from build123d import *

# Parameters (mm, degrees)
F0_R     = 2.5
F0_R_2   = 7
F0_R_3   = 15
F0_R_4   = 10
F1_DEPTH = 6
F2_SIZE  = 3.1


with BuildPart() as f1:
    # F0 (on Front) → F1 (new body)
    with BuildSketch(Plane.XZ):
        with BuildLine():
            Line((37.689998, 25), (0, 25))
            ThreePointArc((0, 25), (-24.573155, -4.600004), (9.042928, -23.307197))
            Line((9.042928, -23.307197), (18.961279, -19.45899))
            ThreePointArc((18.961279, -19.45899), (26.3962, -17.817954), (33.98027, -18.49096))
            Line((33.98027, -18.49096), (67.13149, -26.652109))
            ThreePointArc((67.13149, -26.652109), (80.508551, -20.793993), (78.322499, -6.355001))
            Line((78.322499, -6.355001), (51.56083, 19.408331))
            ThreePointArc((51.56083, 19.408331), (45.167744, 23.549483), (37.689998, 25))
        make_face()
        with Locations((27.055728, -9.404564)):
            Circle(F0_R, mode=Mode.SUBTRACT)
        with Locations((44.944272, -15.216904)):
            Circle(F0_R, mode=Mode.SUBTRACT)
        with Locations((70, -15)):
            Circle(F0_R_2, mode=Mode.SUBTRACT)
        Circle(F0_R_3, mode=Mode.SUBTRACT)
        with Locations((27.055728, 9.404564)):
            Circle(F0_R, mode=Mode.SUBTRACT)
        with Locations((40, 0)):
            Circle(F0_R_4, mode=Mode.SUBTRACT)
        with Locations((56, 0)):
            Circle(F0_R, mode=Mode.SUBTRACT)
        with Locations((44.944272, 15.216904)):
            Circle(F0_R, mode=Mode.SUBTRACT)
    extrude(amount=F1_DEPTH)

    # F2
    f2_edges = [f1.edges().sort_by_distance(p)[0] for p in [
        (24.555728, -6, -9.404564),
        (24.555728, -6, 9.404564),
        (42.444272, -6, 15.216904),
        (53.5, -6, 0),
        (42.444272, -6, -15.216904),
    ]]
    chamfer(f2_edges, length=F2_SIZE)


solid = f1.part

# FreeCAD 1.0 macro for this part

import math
import FreeCAD as App
import Part
import Sketcher

V = App.Vector


def edges_at(feature, points):
    """Names of the edges that pass closest to the given points."""
    edges = feature.Shape.Edges
    near = lambda p: min(range(len(edges)), key=lambda i: edges[i].distToShape(Part.Vertex(*p))[0])
    return sorted({f"Edge{near(p) + 1}" for p in points})

doc = App.newDocument("Part")
body = doc.addObject("PartDesign::Body", "Body")

# Sketch on XZ plane
sketch1 = body.newObject("Sketcher::SketchObject", "Sketch")
sketch1.AttachmentSupport = (doc.getObject("XZ_Plane"), [""])
sketch1.MapMode = "FlatFace"
sketch1.addGeometry([
    Part.LineSegment(V(37.689998, 25, 0), V(0, 25, 0)),  # 0
    Part.ArcOfCircle(Part.Circle(V(0, 0, 0), V(0, 0, 1), 25), math.radians(90), math.radians(291.205688)),  # 1
    Part.LineSegment(V(9.042928, -23.307197, 0), V(18.961279, -19.45899, 0)),  # 2
    Part.ArcOfCircle(Part.Circle(V(28.004206, -42.76617, 0), V(0, 0, 1), 24.999983), math.radians(76.169952), math.radians(111.2057)),  # 3
    Part.LineSegment(V(33.98027, -18.49096, 0), V(67.13149, -26.652109, 0)),  # 4
    Part.ArcOfCircle(Part.Circle(V(70, -15, 0), V(0, 0, 1), 12), math.radians(-103.830036), math.radians(46.088886)),  # 5
    Part.LineSegment(V(78.322499, -6.355001, 0), V(51.56083, 19.408331, 0)),  # 6
    Part.ArcOfCircle(Part.Circle(V(37.689999, 5.000005, 0), V(0, 0, 1), 19.999995), math.radians(46.088877), math.radians(90.000003)),  # 7
    Part.Circle(V(27.055728, -9.404564, 0), V(0, 0, 1), 2.5),  # 8
    Part.Circle(V(44.944272, -15.216904, 0), V(0, 0, 1), 2.5),  # 9
    Part.Circle(V(70, -15, 0), V(0, 0, 1), 7),  # 10
    Part.Circle(V(0, 0, 0), V(0, 0, 1), 15),  # 11
    Part.Circle(V(27.055728, 9.404564, 0), V(0, 0, 1), 2.5),  # 12
    Part.Circle(V(40, 0, 0), V(0, 0, 1), 10),  # 13
    Part.Circle(V(56, 0, 0), V(0, 0, 1), 2.5),  # 14
    Part.Circle(V(44.944272, 15.216904, 0), V(0, 0, 1), 2.5),  # 15
], False)
sketch1.addConstraint([
    Sketcher.Constraint("Tangent", 0, 2, 1, 1),
    Sketcher.Constraint("Tangent", 1, 2, 2, 1),
    Sketcher.Constraint("Tangent", 2, 2, 3, 2),
    Sketcher.Constraint("Tangent", 3, 1, 4, 1),
    Sketcher.Constraint("Tangent", 4, 2, 5, 1),
    Sketcher.Constraint("Tangent", 5, 2, 6, 1),
    Sketcher.Constraint("Tangent", 6, 2, 7, 1),
    Sketcher.Constraint("Tangent", 7, 2, 0, 1),
    Sketcher.Constraint("Horizontal", 0),
    Sketcher.Constraint("Coincident", 1, 3, -1, 1),
    Sketcher.Constraint("Coincident", 11, 3, -1, 1),
    Sketcher.Constraint("Coincident", 10, 3, 5, 3),
    Sketcher.Constraint("Equal", 8, 9),
    Sketcher.Constraint("Equal", 9, 12),
    Sketcher.Constraint("Equal", 12, 14),
    Sketcher.Constraint("Equal", 14, 15),
    Sketcher.Constraint("Symmetric", 8, 3, 12, 3, -1),
    Sketcher.Constraint("Symmetric", 9, 3, 15, 3, -1),
    Sketcher.Constraint("PointOnObject", 13, 3, -1),
    Sketcher.Constraint("PointOnObject", 14, 3, -1),
    Sketcher.Constraint("Diameter", 8, 5.0),
    Sketcher.Constraint("Diameter", 10, 14.0),
    Sketcher.Constraint("Diameter", 11, 30.0),
    Sketcher.Constraint("Diameter", 13, 20.0),
    Sketcher.Constraint("Radius", 1, 25.0),
    Sketcher.Constraint("Radius", 5, 12.0),
    Sketcher.Constraint("DistanceX", -1, 1, 5, 3, 70.0),
    Sketcher.Constraint("DistanceY", 5, 3, -1, 1, 15.0),
    Sketcher.Constraint("DistanceX", -1, 1, 13, 3, 40.0),
    Sketcher.Constraint("DistanceX", -1, 1, 14, 3, 56.0),
    Sketcher.Constraint("DistanceX", 0, 2, 0, 1, 37.689998),
    Sketcher.Constraint("DistanceY", 5, 2, -1, 1, 6.355001),
    Sketcher.Constraint("Radius", 3, 24.999983),
    Sketcher.Constraint("DistanceY", 7, 3, 15, 3, 10.216899),
    Sketcher.Constraint("DistanceX", 1, 2, 8, 3, 18.0128),
    Sketcher.Constraint("Distance", 2, 10.638721),
    Sketcher.Constraint("DistanceY", 3, 3, -1, 1, 42.76617),
    Sketcher.Constraint("DistanceX", -1, 1, 9, 3, 44.944272),
    Sketcher.Constraint("DistanceY", 8, 3, 7, 3, 14.404569),
])
pad1 = body.newObject("PartDesign::Pad", "Pad")
pad1.Profile = sketch1
pad1.Length = 6
doc.recompute()

chamfer = body.newObject("PartDesign::Chamfer", "Chamfer")
chamfer.Base = (pad1, edges_at(pad1, [
    (24.556, -6, -9.405),
    (24.556, -6, 9.405),
    (42.444, -6, 15.217),
    (53.5, -6, 0),
    (42.444, -6, -15.217),
]))
chamfer.Size = 3.1

doc.recompute()
